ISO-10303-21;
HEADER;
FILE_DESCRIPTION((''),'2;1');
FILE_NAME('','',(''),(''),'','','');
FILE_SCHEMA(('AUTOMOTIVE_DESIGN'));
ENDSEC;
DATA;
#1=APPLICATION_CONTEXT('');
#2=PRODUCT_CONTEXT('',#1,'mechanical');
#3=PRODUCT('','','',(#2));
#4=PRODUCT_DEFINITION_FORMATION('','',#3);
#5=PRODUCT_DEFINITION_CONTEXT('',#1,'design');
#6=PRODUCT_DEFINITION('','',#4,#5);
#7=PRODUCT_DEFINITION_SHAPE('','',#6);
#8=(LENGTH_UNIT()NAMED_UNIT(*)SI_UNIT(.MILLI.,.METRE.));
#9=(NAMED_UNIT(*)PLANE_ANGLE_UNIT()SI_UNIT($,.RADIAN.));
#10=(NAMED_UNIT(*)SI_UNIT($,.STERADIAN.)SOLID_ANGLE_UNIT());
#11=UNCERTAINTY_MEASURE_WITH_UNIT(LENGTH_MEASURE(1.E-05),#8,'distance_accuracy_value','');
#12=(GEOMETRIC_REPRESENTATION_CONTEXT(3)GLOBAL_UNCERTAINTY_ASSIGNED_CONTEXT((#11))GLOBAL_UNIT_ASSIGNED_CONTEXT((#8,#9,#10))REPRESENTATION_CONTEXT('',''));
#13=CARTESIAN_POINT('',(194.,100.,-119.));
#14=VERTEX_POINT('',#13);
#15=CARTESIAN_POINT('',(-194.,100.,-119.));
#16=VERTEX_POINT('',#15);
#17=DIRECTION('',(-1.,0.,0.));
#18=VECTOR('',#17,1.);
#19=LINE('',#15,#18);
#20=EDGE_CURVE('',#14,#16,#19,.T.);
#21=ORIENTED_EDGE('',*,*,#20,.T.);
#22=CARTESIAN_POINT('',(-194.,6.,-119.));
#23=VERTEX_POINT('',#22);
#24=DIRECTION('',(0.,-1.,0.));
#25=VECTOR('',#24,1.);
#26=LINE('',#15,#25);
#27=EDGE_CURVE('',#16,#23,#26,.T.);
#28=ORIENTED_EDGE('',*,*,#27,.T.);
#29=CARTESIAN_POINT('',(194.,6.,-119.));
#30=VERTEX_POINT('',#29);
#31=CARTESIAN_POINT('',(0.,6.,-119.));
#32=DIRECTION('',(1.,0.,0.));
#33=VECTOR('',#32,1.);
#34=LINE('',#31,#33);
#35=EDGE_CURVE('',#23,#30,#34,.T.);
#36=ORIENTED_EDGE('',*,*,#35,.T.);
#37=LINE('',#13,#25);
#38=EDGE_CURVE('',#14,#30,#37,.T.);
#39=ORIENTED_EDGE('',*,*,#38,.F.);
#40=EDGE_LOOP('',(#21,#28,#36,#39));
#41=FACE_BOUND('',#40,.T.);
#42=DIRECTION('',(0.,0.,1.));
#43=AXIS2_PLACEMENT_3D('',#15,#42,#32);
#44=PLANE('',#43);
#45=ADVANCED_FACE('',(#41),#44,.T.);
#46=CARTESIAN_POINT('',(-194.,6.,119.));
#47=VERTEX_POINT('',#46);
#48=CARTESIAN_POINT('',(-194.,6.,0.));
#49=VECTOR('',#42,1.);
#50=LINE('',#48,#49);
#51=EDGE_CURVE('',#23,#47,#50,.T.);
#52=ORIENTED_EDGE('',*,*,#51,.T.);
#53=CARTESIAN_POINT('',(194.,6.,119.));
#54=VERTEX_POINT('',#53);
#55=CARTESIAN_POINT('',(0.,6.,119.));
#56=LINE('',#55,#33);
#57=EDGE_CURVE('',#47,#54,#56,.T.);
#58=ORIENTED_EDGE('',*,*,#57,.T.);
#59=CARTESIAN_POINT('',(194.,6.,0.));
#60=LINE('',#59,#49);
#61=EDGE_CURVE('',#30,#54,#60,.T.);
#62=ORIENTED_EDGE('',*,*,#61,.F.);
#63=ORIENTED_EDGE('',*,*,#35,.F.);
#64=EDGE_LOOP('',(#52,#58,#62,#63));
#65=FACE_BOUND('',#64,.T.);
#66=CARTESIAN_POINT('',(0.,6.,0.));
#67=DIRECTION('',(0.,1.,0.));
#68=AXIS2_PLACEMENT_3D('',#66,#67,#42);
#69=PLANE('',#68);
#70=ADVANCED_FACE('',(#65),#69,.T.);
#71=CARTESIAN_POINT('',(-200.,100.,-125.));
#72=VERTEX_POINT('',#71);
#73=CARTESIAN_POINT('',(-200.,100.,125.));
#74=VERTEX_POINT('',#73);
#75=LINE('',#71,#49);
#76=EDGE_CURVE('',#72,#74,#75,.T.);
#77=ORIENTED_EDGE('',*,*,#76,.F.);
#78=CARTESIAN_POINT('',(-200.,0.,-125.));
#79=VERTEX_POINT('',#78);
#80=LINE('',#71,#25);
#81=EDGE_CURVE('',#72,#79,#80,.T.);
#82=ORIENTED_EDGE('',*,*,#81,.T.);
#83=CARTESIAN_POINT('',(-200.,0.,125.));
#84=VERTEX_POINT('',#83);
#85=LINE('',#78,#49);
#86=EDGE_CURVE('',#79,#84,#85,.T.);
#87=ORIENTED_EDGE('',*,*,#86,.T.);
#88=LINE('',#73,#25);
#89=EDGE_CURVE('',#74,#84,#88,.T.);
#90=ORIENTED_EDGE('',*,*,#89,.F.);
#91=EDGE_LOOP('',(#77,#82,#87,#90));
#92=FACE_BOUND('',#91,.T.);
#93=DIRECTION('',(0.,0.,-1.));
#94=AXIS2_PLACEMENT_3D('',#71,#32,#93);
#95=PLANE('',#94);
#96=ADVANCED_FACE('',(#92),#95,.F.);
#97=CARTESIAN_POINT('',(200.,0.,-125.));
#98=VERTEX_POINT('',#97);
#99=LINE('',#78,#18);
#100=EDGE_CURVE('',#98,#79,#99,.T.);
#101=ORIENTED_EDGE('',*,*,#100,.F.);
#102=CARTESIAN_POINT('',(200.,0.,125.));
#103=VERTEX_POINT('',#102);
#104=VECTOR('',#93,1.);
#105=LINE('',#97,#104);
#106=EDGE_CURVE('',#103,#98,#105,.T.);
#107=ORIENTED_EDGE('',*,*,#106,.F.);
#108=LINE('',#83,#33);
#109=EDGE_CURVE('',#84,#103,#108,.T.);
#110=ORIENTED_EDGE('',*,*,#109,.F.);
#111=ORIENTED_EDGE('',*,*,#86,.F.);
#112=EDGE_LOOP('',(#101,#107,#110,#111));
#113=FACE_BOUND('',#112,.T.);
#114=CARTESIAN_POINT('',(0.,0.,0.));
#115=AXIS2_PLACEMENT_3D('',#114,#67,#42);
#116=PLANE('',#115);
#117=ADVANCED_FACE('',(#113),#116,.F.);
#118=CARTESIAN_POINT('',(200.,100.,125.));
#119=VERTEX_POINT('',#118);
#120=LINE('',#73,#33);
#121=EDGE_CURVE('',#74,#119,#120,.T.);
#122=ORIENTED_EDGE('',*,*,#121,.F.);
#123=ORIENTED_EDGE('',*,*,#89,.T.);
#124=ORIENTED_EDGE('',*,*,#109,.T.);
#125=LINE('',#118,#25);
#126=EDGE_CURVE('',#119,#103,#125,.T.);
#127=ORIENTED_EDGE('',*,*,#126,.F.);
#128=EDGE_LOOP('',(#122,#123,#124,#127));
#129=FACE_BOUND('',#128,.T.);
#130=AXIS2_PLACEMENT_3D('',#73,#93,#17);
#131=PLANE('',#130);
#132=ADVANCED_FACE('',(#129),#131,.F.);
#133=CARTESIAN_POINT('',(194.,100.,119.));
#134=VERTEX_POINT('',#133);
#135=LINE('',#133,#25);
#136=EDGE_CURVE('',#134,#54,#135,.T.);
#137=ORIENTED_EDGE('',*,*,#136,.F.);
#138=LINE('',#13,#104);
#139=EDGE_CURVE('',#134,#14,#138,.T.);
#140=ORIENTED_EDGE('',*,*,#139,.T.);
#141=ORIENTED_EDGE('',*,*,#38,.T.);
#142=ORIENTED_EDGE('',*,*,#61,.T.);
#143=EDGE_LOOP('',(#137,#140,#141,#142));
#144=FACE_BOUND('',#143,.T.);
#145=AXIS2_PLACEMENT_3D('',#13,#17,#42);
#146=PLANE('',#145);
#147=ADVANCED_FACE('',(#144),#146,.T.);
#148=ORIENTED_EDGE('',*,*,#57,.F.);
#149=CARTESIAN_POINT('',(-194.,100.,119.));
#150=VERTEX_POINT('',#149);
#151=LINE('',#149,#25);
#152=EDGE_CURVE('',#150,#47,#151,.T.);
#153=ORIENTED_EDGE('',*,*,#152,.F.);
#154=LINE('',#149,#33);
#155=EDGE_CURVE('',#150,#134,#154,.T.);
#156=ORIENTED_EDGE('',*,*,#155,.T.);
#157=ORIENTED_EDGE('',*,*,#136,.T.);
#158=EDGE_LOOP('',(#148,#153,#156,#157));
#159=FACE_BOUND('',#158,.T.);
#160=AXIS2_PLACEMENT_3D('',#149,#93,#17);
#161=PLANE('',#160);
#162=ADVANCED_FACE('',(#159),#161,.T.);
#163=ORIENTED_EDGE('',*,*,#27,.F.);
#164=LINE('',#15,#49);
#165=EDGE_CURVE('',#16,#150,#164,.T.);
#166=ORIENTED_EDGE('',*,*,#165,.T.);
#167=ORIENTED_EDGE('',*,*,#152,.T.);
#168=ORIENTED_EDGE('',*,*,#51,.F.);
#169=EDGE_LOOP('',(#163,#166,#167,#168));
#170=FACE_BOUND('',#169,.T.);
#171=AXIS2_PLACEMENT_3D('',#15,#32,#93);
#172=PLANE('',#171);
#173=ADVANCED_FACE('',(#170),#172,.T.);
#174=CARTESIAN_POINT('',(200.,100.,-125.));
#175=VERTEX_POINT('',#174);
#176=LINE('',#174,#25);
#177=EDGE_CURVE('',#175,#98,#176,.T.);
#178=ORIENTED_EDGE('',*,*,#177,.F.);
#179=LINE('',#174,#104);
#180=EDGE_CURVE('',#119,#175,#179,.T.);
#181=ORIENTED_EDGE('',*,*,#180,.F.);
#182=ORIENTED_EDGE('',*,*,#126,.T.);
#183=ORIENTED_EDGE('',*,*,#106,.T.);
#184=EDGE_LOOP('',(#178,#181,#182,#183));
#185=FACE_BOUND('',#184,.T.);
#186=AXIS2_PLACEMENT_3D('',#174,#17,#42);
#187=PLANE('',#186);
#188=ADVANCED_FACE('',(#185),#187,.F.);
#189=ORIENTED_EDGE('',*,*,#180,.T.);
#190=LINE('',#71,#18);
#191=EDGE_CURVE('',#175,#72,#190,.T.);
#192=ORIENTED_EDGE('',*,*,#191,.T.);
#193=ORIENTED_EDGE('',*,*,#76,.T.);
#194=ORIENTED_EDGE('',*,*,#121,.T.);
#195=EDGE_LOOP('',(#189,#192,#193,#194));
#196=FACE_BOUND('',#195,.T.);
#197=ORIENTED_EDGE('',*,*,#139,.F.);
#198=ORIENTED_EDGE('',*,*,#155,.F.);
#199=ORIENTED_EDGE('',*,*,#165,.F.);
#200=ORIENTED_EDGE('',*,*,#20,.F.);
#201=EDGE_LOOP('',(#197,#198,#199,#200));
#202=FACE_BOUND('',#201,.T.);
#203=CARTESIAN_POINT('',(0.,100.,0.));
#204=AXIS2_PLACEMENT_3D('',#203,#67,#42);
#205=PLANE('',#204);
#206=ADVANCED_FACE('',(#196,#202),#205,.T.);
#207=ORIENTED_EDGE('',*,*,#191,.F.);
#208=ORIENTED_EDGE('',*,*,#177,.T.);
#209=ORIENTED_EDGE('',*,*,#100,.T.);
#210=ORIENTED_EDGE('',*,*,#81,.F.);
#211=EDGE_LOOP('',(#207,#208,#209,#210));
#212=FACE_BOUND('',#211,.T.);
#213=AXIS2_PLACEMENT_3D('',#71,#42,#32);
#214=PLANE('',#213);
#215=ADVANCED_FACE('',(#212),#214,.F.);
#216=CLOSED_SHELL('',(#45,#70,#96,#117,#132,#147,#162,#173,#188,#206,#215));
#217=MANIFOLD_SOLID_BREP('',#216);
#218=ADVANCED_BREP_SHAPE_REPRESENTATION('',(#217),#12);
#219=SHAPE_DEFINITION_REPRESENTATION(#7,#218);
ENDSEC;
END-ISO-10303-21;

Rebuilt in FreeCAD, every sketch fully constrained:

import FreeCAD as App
import Part
import Sketcher

doc = App.newDocument("Part")
body = doc.addObject("PartDesign::Body", "Body")

# Sketch on XZ plane
sketch1 = body.newObject("Sketcher::SketchObject", "Sketch")
sketch1.AttachmentSupport = (doc.getObject("XZ_Plane"), [""])
sketch1.MapMode = "FlatFace"
sketch1.addGeometry([
    Part.LineSegment(App.Vector(-194, -119, 0), App.Vector(-194, 119, 0)),
    Part.LineSegment(App.Vector(-194, 119, 0), App.Vector(194, 119, 0)),
    Part.LineSegment(App.Vector(194, 119, 0), App.Vector(194, -119, 0)),
    Part.LineSegment(App.Vector(194, -119, 0), App.Vector(-194, -119, 0)),
], False)
sketch1.addConstraint([
    Sketcher.Constraint("Coincident", 0, 2, 1, 1),
    Sketcher.Constraint("Coincident", 1, 2, 2, 1),
    Sketcher.Constraint("Coincident", 2, 2, 3, 1),
    Sketcher.Constraint("Coincident", 3, 2, 0, 1),
    Sketcher.Constraint("Vertical", 0),
    Sketcher.Constraint("Horizontal", 1),
    Sketcher.Constraint("Vertical", 2),
    Sketcher.Constraint("Horizontal", 3),
    Sketcher.Constraint("Symmetric", 0, 2, 2, 2, -1, 1),
    Sketcher.Constraint("DistanceX", 1, 1, 1, 2, 388.0),
    Sketcher.Constraint("DistanceY", 0, 1, 0, 2, 238.0),
])
pad1 = body.newObject("PartDesign::Pad", "Pad")
pad1.Profile = sketch1
pad1.Length = 6
pad1.Reversed = True

# Sketch on XZ plane
sketch2 = body.newObject("Sketcher::SketchObject", "Sketch001")
sketch2.AttachmentSupport = (doc.getObject("XZ_Plane"), [""])
sketch2.MapMode = "FlatFace"
sketch2.addGeometry([
    Part.LineSegment(App.Vector(-200, -125, 0), App.Vector(-200, 125, 0)),  # 0
    Part.LineSegment(App.Vector(-200, 125, 0), App.Vector(200, 125, 0)),  # 1
    Part.LineSegment(App.Vector(200, 125, 0), App.Vector(200, -125, 0)),  # 2
    Part.LineSegment(App.Vector(200, -125, 0), App.Vector(-200, -125, 0)),  # 3
    Part.LineSegment(App.Vector(194, 119, 0), App.Vector(-194, 119, 0)),  # 4
    Part.LineSegment(App.Vector(-194, 119, 0), App.Vector(-194, -119, 0)),  # 5
    Part.LineSegment(App.Vector(-194, -119, 0), App.Vector(194, -119, 0)),  # 6
    Part.LineSegment(App.Vector(194, -119, 0), App.Vector(194, 119, 0)),  # 7
], False)
sketch2.addConstraint([
    Sketcher.Constraint("Coincident", 0, 2, 1, 1),
    Sketcher.Constraint("Coincident", 1, 2, 2, 1),
    Sketcher.Constraint("Coincident", 2, 2, 3, 1),
    Sketcher.Constraint("Coincident", 3, 2, 0, 1),
    Sketcher.Constraint("Coincident", 4, 2, 5, 1),
    Sketcher.Constraint("Coincident", 5, 2, 6, 1),
    Sketcher.Constraint("Coincident", 6, 2, 7, 1),
    Sketcher.Constraint("Coincident", 7, 2, 4, 1),
    Sketcher.Constraint("Vertical", 0),
    Sketcher.Constraint("Horizontal", 1),
    Sketcher.Constraint("Vertical", 2),
    Sketcher.Constraint("Horizontal", 3),
    Sketcher.Constraint("Horizontal", 4),
    Sketcher.Constraint("Vertical", 5),
    Sketcher.Constraint("Horizontal", 6),
    Sketcher.Constraint("Vertical", 7),
    Sketcher.Constraint("Symmetric", 0, 2, 2, 2, -1, 1),
    Sketcher.Constraint("Symmetric", 4, 2, 6, 2, -1, 1),
    Sketcher.Constraint("DistanceX", 1, 1, 1, 2, 400.0),
    Sketcher.Constraint("DistanceX", 4, 2, 4, 1, 388.0),
    Sketcher.Constraint("DistanceY", 0, 1, 0, 2, 250.0),
    Sketcher.Constraint("DistanceY", 5, 2, 5, 1, 238.0),
])
pad2 = body.newObject("PartDesign::Pad", "Pad001")
pad2.Profile = sketch2
pad2.Length = 100
pad2.Reversed = True

doc.recompute()
